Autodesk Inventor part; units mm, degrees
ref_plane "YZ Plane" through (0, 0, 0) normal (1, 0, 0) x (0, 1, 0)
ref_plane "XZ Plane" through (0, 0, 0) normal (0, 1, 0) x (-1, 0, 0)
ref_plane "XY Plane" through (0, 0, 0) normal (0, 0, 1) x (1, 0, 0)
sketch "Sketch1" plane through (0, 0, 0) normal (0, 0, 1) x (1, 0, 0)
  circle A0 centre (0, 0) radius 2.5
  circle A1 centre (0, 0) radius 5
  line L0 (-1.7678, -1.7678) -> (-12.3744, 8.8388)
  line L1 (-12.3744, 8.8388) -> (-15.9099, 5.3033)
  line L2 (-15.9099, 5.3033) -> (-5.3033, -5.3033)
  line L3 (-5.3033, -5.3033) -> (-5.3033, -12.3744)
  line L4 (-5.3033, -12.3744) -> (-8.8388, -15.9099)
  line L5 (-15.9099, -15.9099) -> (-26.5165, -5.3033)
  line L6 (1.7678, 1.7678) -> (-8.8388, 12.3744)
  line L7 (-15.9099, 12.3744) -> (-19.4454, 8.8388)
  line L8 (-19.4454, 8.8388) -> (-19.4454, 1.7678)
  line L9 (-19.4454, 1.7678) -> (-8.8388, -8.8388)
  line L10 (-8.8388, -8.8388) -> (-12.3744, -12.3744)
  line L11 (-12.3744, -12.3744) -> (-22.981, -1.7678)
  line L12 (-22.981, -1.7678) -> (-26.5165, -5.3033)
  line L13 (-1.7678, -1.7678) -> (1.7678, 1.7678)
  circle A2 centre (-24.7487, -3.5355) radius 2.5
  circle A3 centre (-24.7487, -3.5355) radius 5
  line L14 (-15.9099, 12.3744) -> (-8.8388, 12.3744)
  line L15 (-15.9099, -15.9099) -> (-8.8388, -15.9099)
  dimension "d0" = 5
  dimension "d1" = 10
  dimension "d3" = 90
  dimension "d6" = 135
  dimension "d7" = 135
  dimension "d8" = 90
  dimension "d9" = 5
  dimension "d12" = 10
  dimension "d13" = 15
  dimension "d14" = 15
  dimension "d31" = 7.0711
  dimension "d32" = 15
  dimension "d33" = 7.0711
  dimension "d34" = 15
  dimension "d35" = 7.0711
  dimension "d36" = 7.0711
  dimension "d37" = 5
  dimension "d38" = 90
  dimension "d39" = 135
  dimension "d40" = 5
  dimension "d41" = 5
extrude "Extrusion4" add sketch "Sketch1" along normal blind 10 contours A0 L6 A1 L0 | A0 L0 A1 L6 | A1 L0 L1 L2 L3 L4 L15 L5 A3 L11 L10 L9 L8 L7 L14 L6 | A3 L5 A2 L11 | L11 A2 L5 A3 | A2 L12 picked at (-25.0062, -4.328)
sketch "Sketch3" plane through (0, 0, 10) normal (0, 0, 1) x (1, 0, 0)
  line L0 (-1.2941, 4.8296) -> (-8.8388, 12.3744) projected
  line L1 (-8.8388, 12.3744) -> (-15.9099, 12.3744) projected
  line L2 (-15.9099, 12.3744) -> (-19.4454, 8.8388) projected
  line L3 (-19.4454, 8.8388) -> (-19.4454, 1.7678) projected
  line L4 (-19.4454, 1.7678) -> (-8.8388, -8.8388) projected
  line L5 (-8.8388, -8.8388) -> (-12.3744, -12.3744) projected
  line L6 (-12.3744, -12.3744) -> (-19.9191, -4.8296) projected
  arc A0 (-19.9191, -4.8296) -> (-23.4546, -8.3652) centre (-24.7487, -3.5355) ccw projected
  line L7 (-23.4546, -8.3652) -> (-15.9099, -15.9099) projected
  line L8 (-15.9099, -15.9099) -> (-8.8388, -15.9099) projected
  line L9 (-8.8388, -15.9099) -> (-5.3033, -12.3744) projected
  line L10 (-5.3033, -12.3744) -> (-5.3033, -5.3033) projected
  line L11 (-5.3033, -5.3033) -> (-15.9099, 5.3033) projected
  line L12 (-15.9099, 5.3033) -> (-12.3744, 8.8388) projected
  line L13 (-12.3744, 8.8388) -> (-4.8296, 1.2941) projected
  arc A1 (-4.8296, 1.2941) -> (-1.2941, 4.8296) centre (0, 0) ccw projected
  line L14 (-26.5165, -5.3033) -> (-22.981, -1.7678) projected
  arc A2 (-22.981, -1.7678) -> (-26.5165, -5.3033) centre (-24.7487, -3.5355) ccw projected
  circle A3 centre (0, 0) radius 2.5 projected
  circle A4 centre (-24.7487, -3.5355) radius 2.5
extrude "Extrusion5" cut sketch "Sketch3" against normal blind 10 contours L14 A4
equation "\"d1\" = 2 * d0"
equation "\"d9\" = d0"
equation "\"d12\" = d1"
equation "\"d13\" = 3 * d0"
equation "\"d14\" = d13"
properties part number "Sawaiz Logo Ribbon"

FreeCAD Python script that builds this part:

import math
import FreeCAD as App
import Part
import Sketcher
from FreeCAD import Vector
Q = App.Units.Quantity

doc = App.newDocument("Part")
body = doc.addObject("PartDesign::Body", "Body")

# Sketch on XY plane
sketch1 = body.newObject("Sketcher::SketchObject", "Sketch")
sketch1.AttachmentSupport = (doc.getObject("XY_Plane"), [""])
sketch1.MapMode = "FlatFace"
sketch1.addGeometry([
    Part.LineSegment(Vector(-1.3, 4.8, 0), Vector(-8.8, 12.4, 0)),  # 0
    Part.LineSegment(Vector(-8.8, 12.4, 0), Vector(-15.9, 12.4, 0)),  # 1
    Part.LineSegment(Vector(-15.9, 12.4, 0), Vector(-19.4, 8.8, 0)),  # 2
    Part.LineSegment(Vector(-19.4, 8.8, 0), Vector(-19.4, 1.8, 0)),  # 3
    Part.LineSegment(Vector(-19.4, 1.8, 0), Vector(-8.8, -8.8, 0)),  # 4
    Part.LineSegment(Vector(-8.8, -8.8, 0), Vector(-12.4, -12.4, 0)),  # 5
    Part.LineSegment(Vector(-12.4, -12.4, 0), Vector(-19.9, -4.8, 0)),  # 6
    Part.ArcOfCircle(Part.Circle(Vector(-24.7, -3.5, 0), Vector(0, 0, 1), 5), math.radians(-15), math.radians(285)),  # 7
    Part.LineSegment(Vector(-23.5, -8.4, 0), Vector(-15.9, -15.9, 0)),  # 8
    Part.LineSegment(Vector(-15.9, -15.9, 0), Vector(-8.8, -15.9, 0)),  # 9
    Part.LineSegment(Vector(-8.8, -15.9, 0), Vector(-5.3, -12.4, 0)),  # 10
    Part.LineSegment(Vector(-5.3, -12.4, 0), Vector(-5.3, -5.3, 0)),  # 11
    Part.LineSegment(Vector(-5.3, -5.3, 0), Vector(-15.9, 5.3, 0)),  # 12
    Part.LineSegment(Vector(-15.9, 5.3, 0), Vector(-12.4, 8.8, 0)),  # 13
    Part.LineSegment(Vector(-12.4, 8.8, 0), Vector(-4.8, 1.3, 0)),  # 14
    Part.ArcOfCircle(Part.Circle(Vector(0, 0, 0), Vector(0, 0, 1), 5), math.radians(165), math.radians(465)),  # 15
    Part.Circle(Vector(0, 0, 0), Vector(0, 0, 1), 2.5),  # 16
    Part.ArcOfCircle(Part.Circle(Vector(-24.7, -3.5, 0), Vector(0, 0, 1), 2.5), math.radians(45), math.radians(225)),  # 17
    Part.LineSegment(Vector(-26.5, -5.3, 0), Vector(-23, -1.8, 0)),  # 18
], False)
sketch1.addConstraint([
    Sketcher.Constraint("Coincident", 0, 2, 1, 1),
    Sketcher.Constraint("Coincident", 1, 2, 2, 1),
    Sketcher.Constraint("Coincident", 2, 2, 3, 1),
    Sketcher.Constraint("Coincident", 3, 2, 4, 1),
    Sketcher.Constraint("Coincident", 4, 2, 5, 1),
    Sketcher.Constraint("Coincident", 5, 2, 6, 1),
    Sketcher.Constraint("Coincident", 6, 2, 7, 1),
    Sketcher.Constraint("Coincident", 7, 2, 8, 1),
    Sketcher.Constraint("Coincident", 8, 2, 9, 1),
    Sketcher.Constraint("Coincident", 9, 2, 10, 1),
    Sketcher.Constraint("Coincident", 10, 2, 11, 1),
    Sketcher.Constraint("Coincident", 11, 2, 12, 1),
    Sketcher.Constraint("Coincident", 12, 2, 13, 1),
    Sketcher.Constraint("Coincident", 13, 2, 14, 1),
    Sketcher.Constraint("Coincident", 14, 2, 15, 1),
    Sketcher.Constraint("Coincident", 15, 2, 0, 1),
    Sketcher.Constraint("Coincident", 17, 1, 18, 2),
    Sketcher.Constraint("Coincident", 18, 1, 17, 2),
    Sketcher.Constraint("Horizontal", 1),
    Sketcher.Constraint("Vertical", 3),
    Sketcher.Constraint("Horizontal", 9),
    Sketcher.Constraint("Vertical", 11),
    Sketcher.Constraint("Coincident", 15, 3, -1, 1),
    Sketcher.Constraint("Coincident", 16, 3, -1, 1),
    Sketcher.Constraint("Coincident", 17, 3, 7, 3),
    Sketcher.Constraint("Equal", 7, 15),
    Sketcher.Constraint("Equal", 16, 17),
    Sketcher.Constraint("Perpendicular", 0, 2),
    Sketcher.Constraint("Perpendicular", 2, 4),
    Sketcher.Constraint("Perpendicular", 4, 5),
    Sketcher.Constraint("Perpendicular", 5, 6),
    Sketcher.Constraint("Parallel", 6, 8),
    Sketcher.Constraint("Perpendicular", 8, 10),
    Sketcher.Constraint("Perpendicular", 10, 12),
    Sketcher.Constraint("Perpendicular", 12, 13),
    Sketcher.Constraint("Perpendicular", 13, 14),
    Sketcher.Constraint("Perpendicular", 14, 18),
    Sketcher.Constraint("Horizontal", 5, 2, 10, 2),
    Sketcher.Constraint("Horizontal", 2, 2, 13, 2),
    Sketcher.Constraint("Horizontal", 11, 2, 18, 1),
    Sketcher.Constraint("Vertical", 0, 2, 4, 2),
    Sketcher.Constraint("Vertical", 1, 2, 8, 2),
    Sketcher.Constraint("Vertical", 4, 2, 9, 2),
    Sketcher.Constraint("Vertical", 8, 2, 12, 2),
    Sketcher.Constraint("Vertical", 5, 2, 13, 2),
    Sketcher.Constraint("Equal", 9, 3),
    Sketcher.Constraint("Equal", 3, 11),
    Sketcher.Constraint("Equal", 2, 5),
    Sketcher.Constraint("Equal", 0, 6),
    Sketcher.Constraint("Equal", 6, 8),
    Sketcher.Constraint("Equal", 5, 10),
    Sketcher.Constraint("Equal", 8, 14),
    Sketcher.Constraint("Equal", 13, 18),
    Sketcher.Constraint("Diameter", 16, 5.0),
    Sketcher.Constraint("Radius", 7, 5.0),
    Sketcher.Constraint("Angle", 0, Q("135 deg")),
    Sketcher.Constraint("Distance", 0, 10.67),
])
pad1 = body.newObject("PartDesign::Pad", "Pad")
pad1.Profile = sketch1
pad1.Length = 10

# Sketch on XY plane
sketch2 = body.newObject("Sketcher::SketchObject", "Sketch001")
sketch2.AttachmentSupport = (doc.getObject("XY_Plane"), [""])
sketch2.MapMode = "FlatFace"
sketch2.AttachmentOffset = App.Placement(Vector(0, 0, 10), App.Rotation())
sketch2.addGeometry([
    Part.LineSegment(Vector(-23, -1.8, 0), Vector(-26.5, -5.3, 0)),
    Part.ArcOfCircle(Part.Circle(Vector(-24.7, -3.5, 0), Vector(0, 0, 1), 2.5), math.radians(-135), math.radians(45)),
], False)
sketch2.addConstraint([
    Sketcher.Constraint("Coincident", 0, 1, 1, 2),
    Sketcher.Constraint("Coincident", 1, 1, 0, 2),
    Sketcher.Constraint("Radius", 1, 2.5),
    Sketcher.Constraint("Angle", 0, Q("-135 deg")),
    Sketcher.Constraint("DistanceX", 0, 1, -1, 1, 22.981),
    Sketcher.Constraint("DistanceX", 1, 3, -1, 1, 24.7487),
    Sketcher.Constraint("DistanceY", 1, 3, -1, 1, 3.5355),
])
pocket1 = body.newObject("PartDesign::Pocket", "Pocket")
pocket1.Profile = sketch2
pocket1.Length = 10

doc.recompute()
